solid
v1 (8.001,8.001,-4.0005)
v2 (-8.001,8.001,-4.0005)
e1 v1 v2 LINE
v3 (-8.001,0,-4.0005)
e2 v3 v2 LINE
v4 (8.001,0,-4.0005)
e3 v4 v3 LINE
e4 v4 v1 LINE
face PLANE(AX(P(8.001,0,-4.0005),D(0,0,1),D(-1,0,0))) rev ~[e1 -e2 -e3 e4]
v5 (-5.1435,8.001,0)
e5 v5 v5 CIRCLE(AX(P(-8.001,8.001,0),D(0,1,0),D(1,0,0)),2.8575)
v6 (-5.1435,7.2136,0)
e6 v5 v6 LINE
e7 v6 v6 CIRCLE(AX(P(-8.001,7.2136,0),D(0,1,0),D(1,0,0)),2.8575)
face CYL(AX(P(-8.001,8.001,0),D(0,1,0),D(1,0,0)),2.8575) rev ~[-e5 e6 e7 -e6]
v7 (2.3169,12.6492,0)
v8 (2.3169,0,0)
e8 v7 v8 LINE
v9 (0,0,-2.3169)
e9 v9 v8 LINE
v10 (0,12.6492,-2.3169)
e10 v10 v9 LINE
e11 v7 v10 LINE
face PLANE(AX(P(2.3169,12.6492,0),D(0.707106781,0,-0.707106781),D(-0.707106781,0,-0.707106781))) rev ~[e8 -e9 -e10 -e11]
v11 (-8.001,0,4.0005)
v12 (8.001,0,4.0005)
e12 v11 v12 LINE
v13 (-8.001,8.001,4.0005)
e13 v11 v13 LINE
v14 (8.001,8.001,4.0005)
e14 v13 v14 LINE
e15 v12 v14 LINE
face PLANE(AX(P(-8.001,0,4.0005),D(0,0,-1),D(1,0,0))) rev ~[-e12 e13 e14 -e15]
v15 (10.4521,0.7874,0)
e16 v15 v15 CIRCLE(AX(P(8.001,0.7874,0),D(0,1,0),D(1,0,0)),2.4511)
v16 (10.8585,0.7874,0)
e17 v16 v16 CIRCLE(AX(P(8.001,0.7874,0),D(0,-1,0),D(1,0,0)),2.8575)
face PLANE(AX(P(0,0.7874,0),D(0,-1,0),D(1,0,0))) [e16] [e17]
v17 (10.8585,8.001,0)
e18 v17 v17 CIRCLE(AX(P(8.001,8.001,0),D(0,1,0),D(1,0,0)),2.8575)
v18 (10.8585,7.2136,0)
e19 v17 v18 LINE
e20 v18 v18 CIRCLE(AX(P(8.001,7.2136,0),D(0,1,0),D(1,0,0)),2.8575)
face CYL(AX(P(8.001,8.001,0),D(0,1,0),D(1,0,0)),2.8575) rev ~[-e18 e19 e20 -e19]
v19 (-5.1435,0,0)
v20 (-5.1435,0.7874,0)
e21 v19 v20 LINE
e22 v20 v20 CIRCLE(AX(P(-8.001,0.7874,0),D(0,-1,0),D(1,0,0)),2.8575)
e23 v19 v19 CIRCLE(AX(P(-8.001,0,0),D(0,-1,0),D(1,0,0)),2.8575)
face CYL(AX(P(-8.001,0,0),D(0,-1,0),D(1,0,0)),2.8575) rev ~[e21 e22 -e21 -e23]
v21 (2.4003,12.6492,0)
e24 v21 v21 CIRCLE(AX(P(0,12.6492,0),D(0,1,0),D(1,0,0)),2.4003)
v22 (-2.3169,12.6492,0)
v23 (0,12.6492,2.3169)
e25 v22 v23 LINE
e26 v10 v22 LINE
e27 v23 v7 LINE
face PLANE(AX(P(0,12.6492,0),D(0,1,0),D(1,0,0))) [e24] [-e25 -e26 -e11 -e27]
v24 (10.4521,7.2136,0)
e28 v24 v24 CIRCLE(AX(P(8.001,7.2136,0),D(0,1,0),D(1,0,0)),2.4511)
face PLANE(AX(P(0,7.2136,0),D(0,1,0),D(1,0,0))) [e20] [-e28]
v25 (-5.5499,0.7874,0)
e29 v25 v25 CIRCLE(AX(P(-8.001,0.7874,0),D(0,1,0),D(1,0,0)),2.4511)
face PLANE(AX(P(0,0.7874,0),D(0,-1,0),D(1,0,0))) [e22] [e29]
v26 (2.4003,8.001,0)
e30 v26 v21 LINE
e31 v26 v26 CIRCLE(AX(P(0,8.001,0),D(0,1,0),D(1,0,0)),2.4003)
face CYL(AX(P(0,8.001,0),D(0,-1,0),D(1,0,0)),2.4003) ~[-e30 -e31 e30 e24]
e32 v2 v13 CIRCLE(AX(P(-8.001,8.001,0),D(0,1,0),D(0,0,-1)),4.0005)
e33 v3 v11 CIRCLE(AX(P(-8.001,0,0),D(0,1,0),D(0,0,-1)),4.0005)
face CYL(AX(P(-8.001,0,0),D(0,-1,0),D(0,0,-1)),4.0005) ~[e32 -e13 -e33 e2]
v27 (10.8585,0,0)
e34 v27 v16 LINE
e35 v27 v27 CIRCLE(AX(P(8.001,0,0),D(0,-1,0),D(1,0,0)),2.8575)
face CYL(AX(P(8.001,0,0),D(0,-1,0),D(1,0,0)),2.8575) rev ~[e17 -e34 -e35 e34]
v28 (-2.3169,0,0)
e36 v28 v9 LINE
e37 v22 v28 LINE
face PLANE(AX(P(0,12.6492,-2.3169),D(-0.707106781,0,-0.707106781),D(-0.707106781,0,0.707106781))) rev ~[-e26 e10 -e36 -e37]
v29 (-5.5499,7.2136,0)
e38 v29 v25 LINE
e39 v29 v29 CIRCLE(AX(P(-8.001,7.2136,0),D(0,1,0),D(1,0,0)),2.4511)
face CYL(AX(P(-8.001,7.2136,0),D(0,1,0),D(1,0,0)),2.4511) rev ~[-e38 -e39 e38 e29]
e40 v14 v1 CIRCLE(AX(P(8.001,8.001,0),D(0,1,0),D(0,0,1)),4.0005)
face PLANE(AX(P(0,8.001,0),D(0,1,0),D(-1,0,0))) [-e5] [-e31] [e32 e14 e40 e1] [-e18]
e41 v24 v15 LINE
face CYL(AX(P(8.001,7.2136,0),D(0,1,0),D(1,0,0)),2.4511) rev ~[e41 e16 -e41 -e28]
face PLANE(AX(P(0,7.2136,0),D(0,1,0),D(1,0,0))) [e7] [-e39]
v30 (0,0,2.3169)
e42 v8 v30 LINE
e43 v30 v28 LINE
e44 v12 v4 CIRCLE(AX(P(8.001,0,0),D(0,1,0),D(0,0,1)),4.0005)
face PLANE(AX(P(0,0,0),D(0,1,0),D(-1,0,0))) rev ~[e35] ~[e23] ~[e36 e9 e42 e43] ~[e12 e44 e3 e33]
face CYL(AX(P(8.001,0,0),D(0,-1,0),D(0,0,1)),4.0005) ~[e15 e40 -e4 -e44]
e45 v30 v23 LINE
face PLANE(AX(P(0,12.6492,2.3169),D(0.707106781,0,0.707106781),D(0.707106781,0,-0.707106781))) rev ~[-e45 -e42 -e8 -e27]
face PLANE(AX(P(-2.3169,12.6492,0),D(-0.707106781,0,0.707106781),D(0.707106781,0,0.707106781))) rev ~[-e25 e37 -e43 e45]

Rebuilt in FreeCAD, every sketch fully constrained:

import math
import FreeCAD as App
import Part
import Sketcher

V = App.Vector
Q = App.Units.Quantity

doc = App.newDocument("Part")
params = doc.addObject("Spreadsheet::Sheet", "Params")
for row, (alias, value) in enumerate([
    ("sketch1_length", "0.129 in"),
    ("pad1_length", "0.315 in"),
    ("sketch2_diameter", "0.225 in"),
    ("pocket1_length", "0.031 in"),
    ("sketch3_diameter", "0.225 in"),
    ("pocket2_length", "0.031 in"),
    ("sketch4_diameter", "0.225 in"),
    ("pocket3_length", "0.031 in"),
    ("sketch5_diameter", "0.225 in"),
    ("pocket4_length", "0.031 in"),
    ("sketch6_diameter", "0.193 in"),
    ("sketch7_diameter", "0.193 in"),
    ("sketch8_diameter", "0.189 in"),
    ("pad2_length", "0.183 in"),
    ("sketch9_length", "0.129 in"),
    ("pocket7_length", "0.183 in"),
], start=1):
    params.set(f"A{row}", alias)
    params.set(f"B{row}", "=" + value)
    params.setAlias(f"B{row}", alias)

body = doc.addObject("PartDesign::Body", "Body")

sketch1 = doc.addObject("Sketcher::SketchObject", "Sketch")
body.addObject(sketch1)
sketch1.AttachmentSupport = (doc.XZ_Plane, [""])
sketch1.MapMode = "FlatFace"
sketch1.addGeometry([
    Part.ArcOfCircle(Part.Circle(V(8, 0, 0), V(0, 0, 1), 4), math.radians(-90), math.radians(90)),
    Part.LineSegment(V(8, -4, 0), V(-8, -4, 0)),
    Part.ArcOfCircle(Part.Circle(V(-8, 0, 0), V(0, 0, 1), 4), math.radians(90), math.radians(270)),
    Part.LineSegment(V(-8, 4, 0), V(8, 4, 0)),
    Part.LineSegment(V(0, -2.3, 0), V(2.3, 0, 0)),
    Part.LineSegment(V(2.3, 0, 0), V(0, 2.3, 0)),
    Part.LineSegment(V(0, 2.3, 0), V(-2.3, 0, 0)),
    Part.LineSegment(V(-2.3, 0, 0), V(0, -2.3, 0)),
], False)
sketch1.addConstraint([
    Sketcher.Constraint("Tangent", 0, 1, 1, 1),
    Sketcher.Constraint("Tangent", 1, 2, 2, 2),
    Sketcher.Constraint("Tangent", 2, 1, 3, 1),
    Sketcher.Constraint("Tangent", 3, 2, 0, 2),
    Sketcher.Constraint("Coincident", 4, 2, 5, 1),
    Sketcher.Constraint("Coincident", 5, 2, 6, 1),
    Sketcher.Constraint("Coincident", 6, 2, 7, 1),
    Sketcher.Constraint("Coincident", 7, 2, 4, 1),
    Sketcher.Constraint("Horizontal", 1),
    Sketcher.Constraint("Horizontal", 3),
    Sketcher.Constraint("Symmetric", 0, 3, 2, 3, -1, 1),
    Sketcher.Constraint("Symmetric", 4, 2, 6, 2, -1, 1),
    Sketcher.Constraint("Symmetric", 5, 2, 7, 2, -1, 1),
    Sketcher.Constraint("PointOnObject", 4, 2, -1),
    Sketcher.Constraint("PointOnObject", 5, 2, -2),
    Sketcher.Constraint("Perpendicular", 4, 5),
    Sketcher.Constraint("Radius", 0, Q("0.1575 in")),
    Sketcher.Constraint("Distance", 4, Q("0.129 in")),
    Sketcher.Constraint("DistanceX", -1, 1, 0, 3, Q("0.315 in")),
])
sketch1.setExpression("Constraints[17]", "Params.sketch1_length")
pad1 = doc.addObject("PartDesign::Pad", "Pad")
body.addObject(pad1)
pad1.Profile = sketch1
pad1.setExpression("Length", "Params.pad1_length")
pad1.Reversed = True

sketch2 = doc.addObject("Sketcher::SketchObject", "Sketch001")
body.addObject(sketch2)
sketch2.AttachmentSupport = (doc.XZ_Plane, [""])
sketch2.MapMode = "FlatFace"
sketch2.AttachmentOffset = App.Placement(V(0, 0, -0.315 * 25.4), App.Rotation())
sketch2.addGeometry(Part.Circle(V(-8, 0, 0), V(0, 0, 1), 2.9), False)
sketch2.addConstraint([
    Sketcher.Constraint("PointOnObject", 0, 3, -1),
    Sketcher.Constraint("Diameter", 0, Q("0.225 in")),
    Sketcher.Constraint("DistanceX", 0, 3, -1, 1, Q("0.315 in")),
])
sketch2.setExpression("Constraints[1]", "Params.sketch2_diameter")
pocket1 = doc.addObject("PartDesign::Pocket", "Pocket")
body.addObject(pocket1)
pocket1.Profile = sketch2
pocket1.setExpression("Length", "Params.pocket1_length")
pocket1.Reversed = True

sketch3 = doc.addObject("Sketcher::SketchObject", "Sketch002")
body.addObject(sketch3)
sketch3.AttachmentSupport = (doc.XZ_Plane, [""])
sketch3.MapMode = "FlatFace"
sketch3.AttachmentOffset = App.Placement(V(0, 0, -0.315 * 25.4), App.Rotation())
sketch3.addGeometry(Part.Circle(V(8, 0, 0), V(0, 0, 1), 2.9), False)
sketch3.addConstraint([
    Sketcher.Constraint("PointOnObject", 0, 3, -1),
    Sketcher.Constraint("Diameter", 0, Q("0.225 in")),
    Sketcher.Constraint("DistanceX", -1, 1, 0, 3, Q("0.315 in")),
])
sketch3.setExpression("Constraints[1]", "Params.sketch3_diameter")
pocket2 = doc.addObject("PartDesign::Pocket", "Pocket001")
body.addObject(pocket2)
pocket2.Profile = sketch3
pocket2.setExpression("Length", "Params.pocket2_length")
pocket2.Reversed = True

sketch4 = doc.addObject("Sketcher::SketchObject", "Sketch003")
body.addObject(sketch4)
sketch4.AttachmentSupport = (doc.XZ_Plane, [""])
sketch4.MapMode = "FlatFace"
sketch4.addGeometry(Part.Circle(V(8, 0, 0), V(0, 0, 1), 2.9), False)
sketch4.addConstraint([
    Sketcher.Constraint("PointOnObject", 0, 3, -1),
    Sketcher.Constraint("Diameter", 0, Q("0.225 in")),
    Sketcher.Constraint("DistanceX", -1, 1, 0, 3, Q("0.315 in")),
])
sketch4.setExpression("Constraints[1]", "Params.sketch4_diameter")
pocket3 = doc.addObject("PartDesign::Pocket", "Pocket002")
body.addObject(pocket3)
pocket3.Profile = sketch4
pocket3.setExpression("Length", "Params.pocket3_length")

sketch5 = doc.addObject("Sketcher::SketchObject", "Sketch004")
body.addObject(sketch5)
sketch5.AttachmentSupport = (doc.XZ_Plane, [""])
sketch5.MapMode = "FlatFace"
sketch5.addGeometry(Part.Circle(V(-8, 0, 0), V(0, 0, 1), 2.9), False)
sketch5.addConstraint([
    Sketcher.Constraint("PointOnObject", 0, 3, -1),
    Sketcher.Constraint("Diameter", 0, Q("0.225 in")),
    Sketcher.Constraint("DistanceX", 0, 3, -1, 1, Q("0.315 in")),
])
sketch5.setExpression("Constraints[1]", "Params.sketch5_diameter")
pocket4 = doc.addObject("PartDesign::Pocket", "Pocket003")
body.addObject(pocket4)
pocket4.Profile = sketch5
pocket4.setExpression("Length", "Params.pocket4_length")

sketch6 = doc.addObject("Sketcher::SketchObject", "Sketch005")
body.addObject(sketch6)
sketch6.AttachmentSupport = (doc.XZ_Plane, [""])
sketch6.MapMode = "FlatFace"
sketch6.AttachmentOffset = App.Placement(V(0, 0, -0.284 * 25.4), App.Rotation())
sketch6.addGeometry(Part.Circle(V(-8, 0, 0), V(0, 0, 1), 2.5), False)
sketch6.addConstraint([
    Sketcher.Constraint("PointOnObject", 0, 3, -1),
    Sketcher.Constraint("Diameter", 0, Q("0.193 in")),
    Sketcher.Constraint("DistanceX", 0, 3, -1, 1, Q("0.315 in")),
])
sketch6.setExpression("Constraints[1]", "Params.sketch6_diameter")
pocket5 = doc.addObject("PartDesign::Pocket", "Pocket004")
body.addObject(pocket5)
pocket5.Profile = sketch6
pocket5.Type = "ThroughAll"
pocket5.Reversed = True

sketch7 = doc.addObject("Sketcher::SketchObject", "Sketch006")
body.addObject(sketch7)
sketch7.AttachmentSupport = (doc.XZ_Plane, [""])
sketch7.MapMode = "FlatFace"
sketch7.AttachmentOffset = App.Placement(V(0, 0, -0.284 * 25.4), App.Rotation())
sketch7.addGeometry(Part.Circle(V(8, 0, 0), V(0, 0, 1), 2.5), False)
sketch7.addConstraint([
    Sketcher.Constraint("PointOnObject", 0, 3, -1),
    Sketcher.Constraint("Diameter", 0, Q("0.193 in")),
    Sketcher.Constraint("DistanceX", -1, 1, 0, 3, Q("0.315 in")),
])
sketch7.setExpression("Constraints[1]", "Params.sketch7_diameter")
pocket6 = doc.addObject("PartDesign::Pocket", "Pocket005")
body.addObject(pocket6)
pocket6.Profile = sketch7
pocket6.Type = "ThroughAll"
pocket6.Reversed = True

sketch8 = doc.addObject("Sketcher::SketchObject", "Sketch007")
body.addObject(sketch8)
sketch8.AttachmentSupport = (doc.XZ_Plane, [""])
sketch8.MapMode = "FlatFace"
sketch8.AttachmentOffset = App.Placement(V(0, 0, -0.315 * 25.4), App.Rotation())
sketch8.addGeometry(Part.Circle(V(0, 0, 0), V(0, 0, 1), 2.4), False)
sketch8.addConstraint([
    Sketcher.Constraint("Coincident", 0, 3, -1, 1),
    Sketcher.Constraint("Diameter", 0, Q("0.189 in")),
])
sketch8.setExpression("Constraints[1]", "Params.sketch8_diameter")
pad2 = doc.addObject("PartDesign::Pad", "Pad001")
body.addObject(pad2)
pad2.Profile = sketch8
pad2.setExpression("Length", "Params.pad2_length")
pad2.Reversed = True

sketch9 = doc.addObject("Sketcher::SketchObject", "Sketch008")
body.addObject(sketch9)
sketch9.AttachmentSupport = (doc.XZ_Plane, [""])
sketch9.MapMode = "FlatFace"
sketch9.AttachmentOffset = App.Placement(V(0, 0, -0.498 * 25.4), App.Rotation())
sketch9.addGeometry([
    Part.LineSegment(V(0, 2.3, 0), V(2.3, 0, 0)),
    Part.LineSegment(V(2.3, 0, 0), V(0, -2.3, 0)),
    Part.LineSegment(V(0, -2.3, 0), V(-2.3, 0, 0)),
    Part.LineSegment(V(-2.3, 0, 0), V(0, 2.3, 0)),
], False)
sketch9.addConstraint([
    Sketcher.Constraint("Coincident", 0, 2, 1, 1),
    Sketcher.Constraint("Coincident", 1, 2, 2, 1),
    Sketcher.Constraint("Coincident", 2, 2, 3, 1),
    Sketcher.Constraint("Coincident", 3, 2, 0, 1),
    Sketcher.Constraint("Symmetric", 0, 2, 2, 2, -1, 1),
    Sketcher.Constraint("Symmetric", 1, 2, 3, 2, -1, 1),
    Sketcher.Constraint("PointOnObject", 0, 2, -1),
    Sketcher.Constraint("PointOnObject", 1, 2, -2),
    Sketcher.Constraint("Perpendicular", 0, 1),
    Sketcher.Constraint("Distance", 0, Q("0.129 in")),
])
sketch9.setExpression("Constraints[9]", "Params.sketch9_length")
pocket7 = doc.addObject("PartDesign::Pocket", "Pocket006")
body.addObject(pocket7)
pocket7.Profile = sketch9
pocket7.setExpression("Length", "Params.pocket7_length")
pocket7.Reversed = True

doc.recompute()
